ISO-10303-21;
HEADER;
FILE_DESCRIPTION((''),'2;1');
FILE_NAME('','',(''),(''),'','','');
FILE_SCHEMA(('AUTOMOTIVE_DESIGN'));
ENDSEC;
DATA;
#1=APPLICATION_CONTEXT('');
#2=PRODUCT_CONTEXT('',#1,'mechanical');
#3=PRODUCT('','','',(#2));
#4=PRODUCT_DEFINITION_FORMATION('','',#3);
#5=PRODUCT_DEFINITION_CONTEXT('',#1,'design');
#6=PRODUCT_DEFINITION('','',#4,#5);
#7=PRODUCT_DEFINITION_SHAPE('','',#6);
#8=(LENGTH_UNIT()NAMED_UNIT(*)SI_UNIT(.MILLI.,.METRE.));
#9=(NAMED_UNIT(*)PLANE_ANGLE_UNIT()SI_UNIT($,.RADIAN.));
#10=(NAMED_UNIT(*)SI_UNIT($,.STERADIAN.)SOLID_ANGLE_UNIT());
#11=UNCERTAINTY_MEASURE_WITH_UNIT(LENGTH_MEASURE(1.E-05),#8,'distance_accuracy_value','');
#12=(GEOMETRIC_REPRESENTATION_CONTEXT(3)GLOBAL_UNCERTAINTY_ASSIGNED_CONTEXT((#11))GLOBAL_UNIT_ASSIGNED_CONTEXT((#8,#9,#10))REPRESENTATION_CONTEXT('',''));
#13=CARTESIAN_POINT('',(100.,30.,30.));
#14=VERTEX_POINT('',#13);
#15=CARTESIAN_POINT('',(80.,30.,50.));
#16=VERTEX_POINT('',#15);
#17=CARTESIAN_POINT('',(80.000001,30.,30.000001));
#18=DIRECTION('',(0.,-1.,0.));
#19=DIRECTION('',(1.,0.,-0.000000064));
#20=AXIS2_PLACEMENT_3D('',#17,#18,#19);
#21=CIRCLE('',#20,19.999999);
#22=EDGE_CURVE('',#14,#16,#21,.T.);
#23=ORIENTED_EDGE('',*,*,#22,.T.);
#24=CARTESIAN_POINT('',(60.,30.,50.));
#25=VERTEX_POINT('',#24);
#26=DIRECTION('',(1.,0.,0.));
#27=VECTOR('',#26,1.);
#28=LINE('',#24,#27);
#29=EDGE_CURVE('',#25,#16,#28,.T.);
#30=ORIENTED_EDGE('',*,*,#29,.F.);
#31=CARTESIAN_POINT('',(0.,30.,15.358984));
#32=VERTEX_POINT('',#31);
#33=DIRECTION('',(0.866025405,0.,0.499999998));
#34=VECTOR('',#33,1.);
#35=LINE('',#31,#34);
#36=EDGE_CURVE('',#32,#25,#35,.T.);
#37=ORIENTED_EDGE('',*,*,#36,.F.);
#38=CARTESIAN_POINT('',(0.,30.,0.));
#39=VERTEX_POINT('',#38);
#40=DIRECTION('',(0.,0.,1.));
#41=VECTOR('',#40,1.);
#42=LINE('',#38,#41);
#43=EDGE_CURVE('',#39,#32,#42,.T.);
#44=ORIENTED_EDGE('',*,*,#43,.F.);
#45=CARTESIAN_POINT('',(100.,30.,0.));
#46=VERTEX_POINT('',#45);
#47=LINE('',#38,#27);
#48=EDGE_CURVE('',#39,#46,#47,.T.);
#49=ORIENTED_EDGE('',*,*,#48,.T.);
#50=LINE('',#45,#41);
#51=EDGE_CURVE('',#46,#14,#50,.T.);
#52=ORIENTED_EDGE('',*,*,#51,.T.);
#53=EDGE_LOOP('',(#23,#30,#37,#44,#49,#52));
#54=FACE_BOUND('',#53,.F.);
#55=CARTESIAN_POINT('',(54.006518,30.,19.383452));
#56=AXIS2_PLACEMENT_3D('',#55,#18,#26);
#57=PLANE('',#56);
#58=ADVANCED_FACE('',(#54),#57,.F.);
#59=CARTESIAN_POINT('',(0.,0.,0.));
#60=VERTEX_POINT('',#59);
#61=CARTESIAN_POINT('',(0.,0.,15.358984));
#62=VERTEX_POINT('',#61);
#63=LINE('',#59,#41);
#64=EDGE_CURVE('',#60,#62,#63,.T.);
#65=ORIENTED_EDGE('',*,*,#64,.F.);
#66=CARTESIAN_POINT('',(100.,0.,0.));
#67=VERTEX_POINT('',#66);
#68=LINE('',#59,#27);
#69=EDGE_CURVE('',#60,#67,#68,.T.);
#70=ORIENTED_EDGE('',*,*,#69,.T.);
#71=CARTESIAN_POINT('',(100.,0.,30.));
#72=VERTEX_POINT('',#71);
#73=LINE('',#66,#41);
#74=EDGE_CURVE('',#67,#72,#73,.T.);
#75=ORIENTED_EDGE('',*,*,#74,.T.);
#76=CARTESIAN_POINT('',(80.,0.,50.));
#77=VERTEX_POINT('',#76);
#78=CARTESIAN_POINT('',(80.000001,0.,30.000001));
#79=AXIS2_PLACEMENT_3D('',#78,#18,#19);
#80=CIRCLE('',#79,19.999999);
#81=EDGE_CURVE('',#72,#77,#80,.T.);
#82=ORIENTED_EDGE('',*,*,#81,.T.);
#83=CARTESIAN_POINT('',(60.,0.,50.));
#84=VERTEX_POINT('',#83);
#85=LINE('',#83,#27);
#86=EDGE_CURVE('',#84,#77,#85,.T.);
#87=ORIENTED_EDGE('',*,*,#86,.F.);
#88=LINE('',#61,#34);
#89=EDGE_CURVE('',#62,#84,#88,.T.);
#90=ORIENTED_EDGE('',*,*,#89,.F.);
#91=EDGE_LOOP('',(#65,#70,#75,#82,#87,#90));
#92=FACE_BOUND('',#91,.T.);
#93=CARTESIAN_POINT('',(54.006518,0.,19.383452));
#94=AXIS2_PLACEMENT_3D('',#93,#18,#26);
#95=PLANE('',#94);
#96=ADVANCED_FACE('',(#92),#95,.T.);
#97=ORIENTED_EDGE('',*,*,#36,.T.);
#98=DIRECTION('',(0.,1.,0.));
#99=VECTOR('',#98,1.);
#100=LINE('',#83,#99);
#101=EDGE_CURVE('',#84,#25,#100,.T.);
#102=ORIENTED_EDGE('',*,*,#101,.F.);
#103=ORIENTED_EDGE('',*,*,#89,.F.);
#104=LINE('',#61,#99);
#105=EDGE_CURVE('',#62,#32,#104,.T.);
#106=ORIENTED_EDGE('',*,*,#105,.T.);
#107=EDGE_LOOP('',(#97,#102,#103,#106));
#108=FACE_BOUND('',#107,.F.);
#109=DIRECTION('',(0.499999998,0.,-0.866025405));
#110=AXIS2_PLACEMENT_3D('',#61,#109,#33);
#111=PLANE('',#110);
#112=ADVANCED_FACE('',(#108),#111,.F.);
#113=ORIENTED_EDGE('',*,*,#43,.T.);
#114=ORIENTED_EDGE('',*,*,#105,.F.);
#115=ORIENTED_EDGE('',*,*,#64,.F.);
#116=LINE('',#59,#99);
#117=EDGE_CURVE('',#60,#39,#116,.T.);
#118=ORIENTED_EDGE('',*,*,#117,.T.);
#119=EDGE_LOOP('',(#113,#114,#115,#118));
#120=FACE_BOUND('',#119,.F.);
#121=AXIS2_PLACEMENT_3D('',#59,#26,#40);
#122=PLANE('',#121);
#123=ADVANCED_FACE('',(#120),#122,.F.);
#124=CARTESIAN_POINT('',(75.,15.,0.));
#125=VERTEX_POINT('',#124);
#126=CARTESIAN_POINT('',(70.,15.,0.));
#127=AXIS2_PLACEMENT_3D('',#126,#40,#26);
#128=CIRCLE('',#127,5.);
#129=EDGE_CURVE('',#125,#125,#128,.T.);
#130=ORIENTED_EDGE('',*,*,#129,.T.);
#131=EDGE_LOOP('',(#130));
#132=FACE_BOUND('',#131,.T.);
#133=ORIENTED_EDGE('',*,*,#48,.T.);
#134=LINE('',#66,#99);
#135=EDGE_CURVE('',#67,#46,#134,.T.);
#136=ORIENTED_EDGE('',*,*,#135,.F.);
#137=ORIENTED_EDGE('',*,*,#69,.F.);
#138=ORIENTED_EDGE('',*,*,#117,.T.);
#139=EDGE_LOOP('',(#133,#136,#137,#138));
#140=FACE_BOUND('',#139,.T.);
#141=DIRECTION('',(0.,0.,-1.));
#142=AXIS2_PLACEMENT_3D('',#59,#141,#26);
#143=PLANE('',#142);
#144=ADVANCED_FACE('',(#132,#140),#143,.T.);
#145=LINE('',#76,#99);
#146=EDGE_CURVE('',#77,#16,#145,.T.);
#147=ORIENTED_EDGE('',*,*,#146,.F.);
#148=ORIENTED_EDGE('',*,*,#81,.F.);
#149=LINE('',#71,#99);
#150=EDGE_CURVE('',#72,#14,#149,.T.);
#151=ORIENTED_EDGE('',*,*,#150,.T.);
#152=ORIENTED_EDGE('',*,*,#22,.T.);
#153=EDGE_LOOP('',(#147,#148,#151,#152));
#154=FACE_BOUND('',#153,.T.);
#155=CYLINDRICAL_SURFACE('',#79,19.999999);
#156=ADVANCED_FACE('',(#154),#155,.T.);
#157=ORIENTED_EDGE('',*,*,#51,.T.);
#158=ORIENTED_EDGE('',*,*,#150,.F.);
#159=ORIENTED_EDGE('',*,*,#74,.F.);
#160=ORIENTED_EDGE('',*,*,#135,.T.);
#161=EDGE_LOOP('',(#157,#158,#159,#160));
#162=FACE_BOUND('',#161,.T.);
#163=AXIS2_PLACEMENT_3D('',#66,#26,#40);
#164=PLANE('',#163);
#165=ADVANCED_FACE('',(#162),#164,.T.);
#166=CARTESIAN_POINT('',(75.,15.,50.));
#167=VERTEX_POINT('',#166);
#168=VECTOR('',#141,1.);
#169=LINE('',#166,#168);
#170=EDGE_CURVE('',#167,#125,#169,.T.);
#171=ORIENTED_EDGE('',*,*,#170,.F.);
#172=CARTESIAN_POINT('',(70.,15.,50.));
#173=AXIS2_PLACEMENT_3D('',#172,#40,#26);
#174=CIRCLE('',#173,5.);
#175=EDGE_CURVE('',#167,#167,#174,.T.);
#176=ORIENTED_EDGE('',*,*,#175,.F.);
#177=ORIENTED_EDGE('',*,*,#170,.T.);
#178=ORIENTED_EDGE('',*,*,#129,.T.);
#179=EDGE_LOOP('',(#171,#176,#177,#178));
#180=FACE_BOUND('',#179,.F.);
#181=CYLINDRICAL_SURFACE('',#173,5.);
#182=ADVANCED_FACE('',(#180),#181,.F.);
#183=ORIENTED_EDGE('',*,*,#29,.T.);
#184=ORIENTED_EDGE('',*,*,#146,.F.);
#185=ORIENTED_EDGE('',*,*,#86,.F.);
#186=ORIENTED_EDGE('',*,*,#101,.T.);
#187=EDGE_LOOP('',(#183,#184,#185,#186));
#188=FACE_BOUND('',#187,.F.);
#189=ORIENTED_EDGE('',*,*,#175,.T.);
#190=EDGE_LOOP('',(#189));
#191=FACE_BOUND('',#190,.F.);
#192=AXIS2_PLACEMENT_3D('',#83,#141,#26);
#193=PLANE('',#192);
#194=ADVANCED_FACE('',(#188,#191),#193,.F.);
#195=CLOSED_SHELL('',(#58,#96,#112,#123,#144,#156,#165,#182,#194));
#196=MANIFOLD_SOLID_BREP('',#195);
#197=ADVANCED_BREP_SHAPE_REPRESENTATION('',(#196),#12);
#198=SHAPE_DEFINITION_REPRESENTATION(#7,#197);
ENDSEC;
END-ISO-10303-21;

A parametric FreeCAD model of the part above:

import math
import FreeCAD as App
import Part
import Sketcher

V = App.Vector
Q = App.Units.Quantity

doc = App.newDocument("Part")
body = doc.addObject("PartDesign::Body", "Body")

# Sketch on XZ plane
sketch1 = body.newObject("Sketcher::SketchObject", "Sketch")
sketch1.AttachmentSupport = (doc.getObject("XZ_Plane"), [""])
sketch1.MapMode = "FlatFace"
sketch1.addGeometry([
    Part.LineSegment(V(0, 0, 0), V(100, 0, 0)),  # 0
    Part.LineSegment(V(100, 0, 0), V(100, 30, 0)),  # 1
    Part.ArcOfCircle(Part.Circle(V(80, 30, 0), V(0, 0, 1), 20), math.radians(0), math.radians(90)),  # 2
    Part.LineSegment(V(80, 50, 0), V(60, 50, 0)),  # 3
    Part.LineSegment(V(60, 50, 0), V(0, 15, 0)),  # 4
    Part.LineSegment(V(0, 15, 0), V(0, 0, 0)),  # 5
], False)
sketch1.addConstraint([
    Sketcher.Constraint("Coincident", 0, 2, 1, 1),
    Sketcher.Constraint("Tangent", 1, 2, 2, 1),
    Sketcher.Constraint("Tangent", 2, 2, 3, 1),
    Sketcher.Constraint("Coincident", 3, 2, 4, 1),
    Sketcher.Constraint("Coincident", 4, 2, 5, 1),
    Sketcher.Constraint("Coincident", 5, 2, 0, 1),
    Sketcher.Constraint("Horizontal", 0),
    Sketcher.Constraint("Vertical", 1),
    Sketcher.Constraint("Horizontal", 3),
    Sketcher.Constraint("Vertical", 5),
    Sketcher.Constraint("Coincident", 5, 2, -1, 1),
    Sketcher.Constraint("Radius", 2, 19.999999),
    Sketcher.Constraint("DistanceX", 0, 1, 0, 2, 100.0),
    Sketcher.Constraint("DistanceX", 3, 2, 3, 1, 20.0),
    Sketcher.Constraint("DistanceY", 1, 1, 1, 2, 30.0),
    Sketcher.Constraint("Angle", 4, Q("-150 deg")),
])
pad1 = body.newObject("PartDesign::Pad", "Pad")
pad1.Profile = sketch1
pad1.Length = 30
pad1.Reversed = True

# Sketch on XY plane
sketch2 = body.newObject("Sketcher::SketchObject", "Sketch001")
sketch2.AttachmentSupport = (doc.getObject("XY_Plane"), [""])
sketch2.MapMode = "FlatFace"
sketch2.AttachmentOffset = App.Placement(V(0, 0, 50), App.Rotation())
sketch2.addGeometry(Part.Circle(V(70, 15, 0), V(0, 0, 1), 5), False)
sketch2.addConstraint([
    Sketcher.Constraint("Diameter", 0, 10.0),
    Sketcher.Constraint("DistanceX", -1, 1, 0, 3, 70.0),
    Sketcher.Constraint("DistanceY", -1, 1, 0, 3, 15.0),
])
pocket1 = body.newObject("PartDesign::Pocket", "Pocket")
pocket1.Profile = sketch2
pocket1.Type = "ThroughAll"

doc.recompute()
